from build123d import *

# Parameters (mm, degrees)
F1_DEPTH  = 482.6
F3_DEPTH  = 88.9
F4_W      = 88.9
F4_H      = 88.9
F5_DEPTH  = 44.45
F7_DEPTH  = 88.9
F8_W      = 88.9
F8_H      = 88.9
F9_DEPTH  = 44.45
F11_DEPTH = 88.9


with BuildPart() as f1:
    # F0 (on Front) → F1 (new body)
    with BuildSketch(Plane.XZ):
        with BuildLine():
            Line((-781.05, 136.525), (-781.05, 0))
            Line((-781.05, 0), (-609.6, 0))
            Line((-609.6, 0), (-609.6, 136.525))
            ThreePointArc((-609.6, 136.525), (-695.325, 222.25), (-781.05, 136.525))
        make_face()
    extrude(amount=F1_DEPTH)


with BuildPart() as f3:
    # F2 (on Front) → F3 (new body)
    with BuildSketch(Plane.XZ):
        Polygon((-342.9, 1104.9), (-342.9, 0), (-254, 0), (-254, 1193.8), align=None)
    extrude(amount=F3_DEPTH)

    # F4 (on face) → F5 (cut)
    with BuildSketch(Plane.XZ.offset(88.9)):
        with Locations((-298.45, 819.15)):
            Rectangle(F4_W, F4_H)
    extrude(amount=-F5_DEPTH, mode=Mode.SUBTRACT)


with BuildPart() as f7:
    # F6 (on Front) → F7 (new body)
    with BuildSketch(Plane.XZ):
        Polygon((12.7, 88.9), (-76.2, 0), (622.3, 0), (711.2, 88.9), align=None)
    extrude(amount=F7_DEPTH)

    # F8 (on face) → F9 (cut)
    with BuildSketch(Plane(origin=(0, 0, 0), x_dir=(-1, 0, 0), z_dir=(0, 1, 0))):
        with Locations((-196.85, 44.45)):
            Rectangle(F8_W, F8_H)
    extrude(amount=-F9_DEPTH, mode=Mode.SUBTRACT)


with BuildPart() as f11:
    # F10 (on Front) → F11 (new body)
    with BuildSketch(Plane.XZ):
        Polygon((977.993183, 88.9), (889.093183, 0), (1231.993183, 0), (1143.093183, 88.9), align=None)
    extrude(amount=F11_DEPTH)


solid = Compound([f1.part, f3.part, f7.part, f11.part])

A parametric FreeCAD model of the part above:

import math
import FreeCAD as App
import Part
import Sketcher

V = App.Vector
Q = App.Units.Quantity


def add_polygon(sketch, points):
    """Adds a closed chain of lines whose ends are joined by coincident constraints."""
    first, n = sketch.GeometryCount, len(points)
    for a, b in zip(points, points[1:] + points[:1]):
        sketch.addGeometry(Part.LineSegment(App.Vector(*a, 0), App.Vector(*b, 0)), False)
    for i in range(n):
        sketch.addConstraint(Sketcher.Constraint("Coincident", first + i, 2, first + (i + 1) % n, 1))

doc = App.newDocument("Part")
body = doc.addObject("PartDesign::Body", "Body")

# Sketch on XZ plane
sketch1 = doc.addObject("Sketcher::SketchObject", "Sketch")
body.addObject(sketch1)
sketch1.AttachmentSupport = (doc.XZ_Plane, [""])
sketch1.MapMode = "FlatFace"
sketch1.addGeometry([
    Part.LineSegment(V(-781, 137, 0), V(-781, 0, 0)),
    Part.LineSegment(V(-781, 0, 0), V(-610, 0, 0)),
    Part.LineSegment(V(-610, 0, 0), V(-610, 137, 0)),
    Part.ArcOfCircle(Part.Circle(V(-695, 137, 0), V(0, 0, 1), 86), math.radians(0), math.radians(180)),
], False)
sketch1.addConstraint([
    Sketcher.Constraint("Coincident", 0, 2, 1, 1),
    Sketcher.Constraint("Coincident", 1, 2, 2, 1),
    Sketcher.Constraint("Tangent", 2, 2, 3, 1),
    Sketcher.Constraint("Tangent", 3, 2, 0, 1),
    Sketcher.Constraint("Vertical", 0),
    Sketcher.Constraint("Horizontal", 1),
    Sketcher.Constraint("Vertical", 2),
    Sketcher.Constraint("PointOnObject", 0, 2, -1),
    Sketcher.Constraint("DistanceX", 1, 2, -1, 1, Q("24 in")),
    Sketcher.Constraint("Radius", 3, Q("3.375 in")),
    Sketcher.Constraint("DistanceY", 0, 2, 0, 1, Q("5.375 in")),
])
pad1 = doc.addObject("PartDesign::Pad", "Pad")
body.addObject(pad1)
pad1.Profile = sketch1
pad1.Length = Q("19 in")
body2 = doc.addObject("PartDesign::Body", "Body001")

# Sketch on XZ plane
sketch2 = doc.addObject("Sketcher::SketchObject", "Sketch001")
body2.addObject(sketch2)
sketch2.AttachmentSupport = (doc.getObject("XZ_Plane001"), [""])
sketch2.MapMode = "FlatFace"
add_polygon(sketch2, [(-343, 1105), (-343, 0), (-254, 0), (-254, 1194)])  # lines 0-3
sketch2.addConstraint([
    Sketcher.Constraint("Vertical", 0),
    Sketcher.Constraint("Horizontal", 1),
    Sketcher.Constraint("Vertical", 2),
    Sketcher.Constraint("PointOnObject", 0, 2, -1),
    Sketcher.Constraint("DistanceY", 2, 1, 2, 2, Q("47 in")),
    Sketcher.Constraint("DistanceX", 1, 1, 1, 2, Q("3.5 in")),
    Sketcher.Constraint("DistanceY", 0, 2, 0, 1, Q("43.5 in")),
    Sketcher.Constraint("DistanceX", 1, 2, -1, 1, Q("10 in")),
])
pad2 = doc.addObject("PartDesign::Pad", "Pad001")
body2.addObject(pad2)
pad2.Profile = sketch2
pad2.Length = Q("3.5 in")

# Sketch on XZ plane
sketch3 = doc.addObject("Sketcher::SketchObject", "Sketch002")
body2.addObject(sketch3)
sketch3.AttachmentSupport = (doc.getObject("XZ_Plane001"), [""])
sketch3.MapMode = "FlatFace"
sketch3.AttachmentOffset = App.Placement(V(0, 0, 3.5 * 25.4), App.Rotation())
add_polygon(sketch3, [(-343, 864), (-343, 775), (-254, 775), (-254, 864)])  # lines 0-3
sketch3.addConstraint([
    Sketcher.Constraint("Vertical", 0),
    Sketcher.Constraint("Horizontal", 1),
    Sketcher.Constraint("Vertical", 2),
    Sketcher.Constraint("Horizontal", 3),
    Sketcher.Constraint("Equal", 3, 0),
    Sketcher.Constraint("DistanceX", 1, 1, 1, 2, Q("3.5 in")),
    Sketcher.Constraint("DistanceX", 1, 2, -1, 1, Q("10 in")),
    Sketcher.Constraint("DistanceY", -1, 1, 2, 2, Q("34 in")),
])
pocket1 = doc.addObject("PartDesign::Pocket", "Pocket")
body2.addObject(pocket1)
pocket1.Profile = sketch3
pocket1.Length = Q("1.75 in")
body3 = doc.addObject("PartDesign::Body", "Body002")

# Sketch on XZ plane
sketch4 = doc.addObject("Sketcher::SketchObject", "Sketch003")
body3.addObject(sketch4)
sketch4.AttachmentSupport = (doc.getObject("XZ_Plane002"), [""])
sketch4.MapMode = "FlatFace"
add_polygon(sketch4, [(13, 89), (-76, 0), (622, 0), (711, 89)])  # lines 0-3
sketch4.addConstraint([
    Sketcher.Constraint("Horizontal", 1),
    Sketcher.Constraint("Horizontal", 3),
    Sketcher.Constraint("PointOnObject", 0, 2, -1),
    Sketcher.Constraint("Parallel", 0, 2),
    Sketcher.Constraint("DistanceX", 1, 1, 1, 2, Q("27.5 in")),
    Sketcher.Constraint("DistanceX", 0, 2, -1, 1, Q("3 in")),
    Sketcher.Constraint("DistanceX", -1, 1, 2, 2, Q("28 in")),
    Sketcher.Constraint("Angle", 0, Q("-135 deg")),
])
pad3 = doc.addObject("PartDesign::Pad", "Pad002")
body3.addObject(pad3)
pad3.Profile = sketch4
pad3.Length = Q("3.5 in")

# Sketch on XZ plane
sketch5 = doc.addObject("Sketcher::SketchObject", "Sketch004")
body3.addObject(sketch5)
sketch5.AttachmentSupport = (doc.getObject("XZ_Plane002"), [""])
sketch5.MapMode = "FlatFace"
add_polygon(sketch5, [(241, 89), (241, 0), (152, 0), (152, 89)])  # lines 0-3
sketch5.addConstraint([
    Sketcher.Constraint("Vertical", 0),
    Sketcher.Constraint("Horizontal", 1),
    Sketcher.Constraint("Vertical", 2),
    Sketcher.Constraint("Horizontal", 3),
    Sketcher.Constraint("PointOnObject", 0, 2, -1),
    Sketcher.Constraint("Equal", 3, 0),
    Sketcher.Constraint("DistanceX", 1, 2, 1, 1, Q("3.5 in")),
    Sketcher.Constraint("DistanceX", -1, 1, 1, 2, Q("6 in")),
])
pocket2 = doc.addObject("PartDesign::Pocket", "Pocket001")
body3.addObject(pocket2)
pocket2.Profile = sketch5
pocket2.Length = Q("1.75 in")
pocket2.Reversed = True
body4 = doc.addObject("PartDesign::Body", "Body003")

# Sketch on XZ plane
sketch6 = doc.addObject("Sketcher::SketchObject", "Sketch005")
body4.addObject(sketch6)
sketch6.AttachmentSupport = (doc.getObject("XZ_Plane003"), [""])
sketch6.MapMode = "FlatFace"
add_polygon(sketch6, [(978, 89), (889, 0), (1232, 0), (1143, 89)])  # lines 0-3
sketch6.addConstraint([
    Sketcher.Constraint("Horizontal", 1),
    Sketcher.Constraint("Horizontal", 3),
    Sketcher.Constraint("PointOnObject", 0, 2, -1),
    Sketcher.Constraint("Perpendicular", 0, 2),
    Sketcher.Constraint("Equal", 0, 2),
    Sketcher.Constraint("DistanceX", 1, 1, 1, 2, Q("13.5 in")),
    Sketcher.Constraint("DistanceX", 3, 2, 3, 1, Q("6.5 in")),
    Sketcher.Constraint("DistanceX", -1, 1, 0, 2, 889.093183),
])
pad4 = doc.addObject("PartDesign::Pad", "Pad003")
body4.addObject(pad4)
pad4.Profile = sketch6
pad4.Length = Q("3.5 in")

doc.recompute()
